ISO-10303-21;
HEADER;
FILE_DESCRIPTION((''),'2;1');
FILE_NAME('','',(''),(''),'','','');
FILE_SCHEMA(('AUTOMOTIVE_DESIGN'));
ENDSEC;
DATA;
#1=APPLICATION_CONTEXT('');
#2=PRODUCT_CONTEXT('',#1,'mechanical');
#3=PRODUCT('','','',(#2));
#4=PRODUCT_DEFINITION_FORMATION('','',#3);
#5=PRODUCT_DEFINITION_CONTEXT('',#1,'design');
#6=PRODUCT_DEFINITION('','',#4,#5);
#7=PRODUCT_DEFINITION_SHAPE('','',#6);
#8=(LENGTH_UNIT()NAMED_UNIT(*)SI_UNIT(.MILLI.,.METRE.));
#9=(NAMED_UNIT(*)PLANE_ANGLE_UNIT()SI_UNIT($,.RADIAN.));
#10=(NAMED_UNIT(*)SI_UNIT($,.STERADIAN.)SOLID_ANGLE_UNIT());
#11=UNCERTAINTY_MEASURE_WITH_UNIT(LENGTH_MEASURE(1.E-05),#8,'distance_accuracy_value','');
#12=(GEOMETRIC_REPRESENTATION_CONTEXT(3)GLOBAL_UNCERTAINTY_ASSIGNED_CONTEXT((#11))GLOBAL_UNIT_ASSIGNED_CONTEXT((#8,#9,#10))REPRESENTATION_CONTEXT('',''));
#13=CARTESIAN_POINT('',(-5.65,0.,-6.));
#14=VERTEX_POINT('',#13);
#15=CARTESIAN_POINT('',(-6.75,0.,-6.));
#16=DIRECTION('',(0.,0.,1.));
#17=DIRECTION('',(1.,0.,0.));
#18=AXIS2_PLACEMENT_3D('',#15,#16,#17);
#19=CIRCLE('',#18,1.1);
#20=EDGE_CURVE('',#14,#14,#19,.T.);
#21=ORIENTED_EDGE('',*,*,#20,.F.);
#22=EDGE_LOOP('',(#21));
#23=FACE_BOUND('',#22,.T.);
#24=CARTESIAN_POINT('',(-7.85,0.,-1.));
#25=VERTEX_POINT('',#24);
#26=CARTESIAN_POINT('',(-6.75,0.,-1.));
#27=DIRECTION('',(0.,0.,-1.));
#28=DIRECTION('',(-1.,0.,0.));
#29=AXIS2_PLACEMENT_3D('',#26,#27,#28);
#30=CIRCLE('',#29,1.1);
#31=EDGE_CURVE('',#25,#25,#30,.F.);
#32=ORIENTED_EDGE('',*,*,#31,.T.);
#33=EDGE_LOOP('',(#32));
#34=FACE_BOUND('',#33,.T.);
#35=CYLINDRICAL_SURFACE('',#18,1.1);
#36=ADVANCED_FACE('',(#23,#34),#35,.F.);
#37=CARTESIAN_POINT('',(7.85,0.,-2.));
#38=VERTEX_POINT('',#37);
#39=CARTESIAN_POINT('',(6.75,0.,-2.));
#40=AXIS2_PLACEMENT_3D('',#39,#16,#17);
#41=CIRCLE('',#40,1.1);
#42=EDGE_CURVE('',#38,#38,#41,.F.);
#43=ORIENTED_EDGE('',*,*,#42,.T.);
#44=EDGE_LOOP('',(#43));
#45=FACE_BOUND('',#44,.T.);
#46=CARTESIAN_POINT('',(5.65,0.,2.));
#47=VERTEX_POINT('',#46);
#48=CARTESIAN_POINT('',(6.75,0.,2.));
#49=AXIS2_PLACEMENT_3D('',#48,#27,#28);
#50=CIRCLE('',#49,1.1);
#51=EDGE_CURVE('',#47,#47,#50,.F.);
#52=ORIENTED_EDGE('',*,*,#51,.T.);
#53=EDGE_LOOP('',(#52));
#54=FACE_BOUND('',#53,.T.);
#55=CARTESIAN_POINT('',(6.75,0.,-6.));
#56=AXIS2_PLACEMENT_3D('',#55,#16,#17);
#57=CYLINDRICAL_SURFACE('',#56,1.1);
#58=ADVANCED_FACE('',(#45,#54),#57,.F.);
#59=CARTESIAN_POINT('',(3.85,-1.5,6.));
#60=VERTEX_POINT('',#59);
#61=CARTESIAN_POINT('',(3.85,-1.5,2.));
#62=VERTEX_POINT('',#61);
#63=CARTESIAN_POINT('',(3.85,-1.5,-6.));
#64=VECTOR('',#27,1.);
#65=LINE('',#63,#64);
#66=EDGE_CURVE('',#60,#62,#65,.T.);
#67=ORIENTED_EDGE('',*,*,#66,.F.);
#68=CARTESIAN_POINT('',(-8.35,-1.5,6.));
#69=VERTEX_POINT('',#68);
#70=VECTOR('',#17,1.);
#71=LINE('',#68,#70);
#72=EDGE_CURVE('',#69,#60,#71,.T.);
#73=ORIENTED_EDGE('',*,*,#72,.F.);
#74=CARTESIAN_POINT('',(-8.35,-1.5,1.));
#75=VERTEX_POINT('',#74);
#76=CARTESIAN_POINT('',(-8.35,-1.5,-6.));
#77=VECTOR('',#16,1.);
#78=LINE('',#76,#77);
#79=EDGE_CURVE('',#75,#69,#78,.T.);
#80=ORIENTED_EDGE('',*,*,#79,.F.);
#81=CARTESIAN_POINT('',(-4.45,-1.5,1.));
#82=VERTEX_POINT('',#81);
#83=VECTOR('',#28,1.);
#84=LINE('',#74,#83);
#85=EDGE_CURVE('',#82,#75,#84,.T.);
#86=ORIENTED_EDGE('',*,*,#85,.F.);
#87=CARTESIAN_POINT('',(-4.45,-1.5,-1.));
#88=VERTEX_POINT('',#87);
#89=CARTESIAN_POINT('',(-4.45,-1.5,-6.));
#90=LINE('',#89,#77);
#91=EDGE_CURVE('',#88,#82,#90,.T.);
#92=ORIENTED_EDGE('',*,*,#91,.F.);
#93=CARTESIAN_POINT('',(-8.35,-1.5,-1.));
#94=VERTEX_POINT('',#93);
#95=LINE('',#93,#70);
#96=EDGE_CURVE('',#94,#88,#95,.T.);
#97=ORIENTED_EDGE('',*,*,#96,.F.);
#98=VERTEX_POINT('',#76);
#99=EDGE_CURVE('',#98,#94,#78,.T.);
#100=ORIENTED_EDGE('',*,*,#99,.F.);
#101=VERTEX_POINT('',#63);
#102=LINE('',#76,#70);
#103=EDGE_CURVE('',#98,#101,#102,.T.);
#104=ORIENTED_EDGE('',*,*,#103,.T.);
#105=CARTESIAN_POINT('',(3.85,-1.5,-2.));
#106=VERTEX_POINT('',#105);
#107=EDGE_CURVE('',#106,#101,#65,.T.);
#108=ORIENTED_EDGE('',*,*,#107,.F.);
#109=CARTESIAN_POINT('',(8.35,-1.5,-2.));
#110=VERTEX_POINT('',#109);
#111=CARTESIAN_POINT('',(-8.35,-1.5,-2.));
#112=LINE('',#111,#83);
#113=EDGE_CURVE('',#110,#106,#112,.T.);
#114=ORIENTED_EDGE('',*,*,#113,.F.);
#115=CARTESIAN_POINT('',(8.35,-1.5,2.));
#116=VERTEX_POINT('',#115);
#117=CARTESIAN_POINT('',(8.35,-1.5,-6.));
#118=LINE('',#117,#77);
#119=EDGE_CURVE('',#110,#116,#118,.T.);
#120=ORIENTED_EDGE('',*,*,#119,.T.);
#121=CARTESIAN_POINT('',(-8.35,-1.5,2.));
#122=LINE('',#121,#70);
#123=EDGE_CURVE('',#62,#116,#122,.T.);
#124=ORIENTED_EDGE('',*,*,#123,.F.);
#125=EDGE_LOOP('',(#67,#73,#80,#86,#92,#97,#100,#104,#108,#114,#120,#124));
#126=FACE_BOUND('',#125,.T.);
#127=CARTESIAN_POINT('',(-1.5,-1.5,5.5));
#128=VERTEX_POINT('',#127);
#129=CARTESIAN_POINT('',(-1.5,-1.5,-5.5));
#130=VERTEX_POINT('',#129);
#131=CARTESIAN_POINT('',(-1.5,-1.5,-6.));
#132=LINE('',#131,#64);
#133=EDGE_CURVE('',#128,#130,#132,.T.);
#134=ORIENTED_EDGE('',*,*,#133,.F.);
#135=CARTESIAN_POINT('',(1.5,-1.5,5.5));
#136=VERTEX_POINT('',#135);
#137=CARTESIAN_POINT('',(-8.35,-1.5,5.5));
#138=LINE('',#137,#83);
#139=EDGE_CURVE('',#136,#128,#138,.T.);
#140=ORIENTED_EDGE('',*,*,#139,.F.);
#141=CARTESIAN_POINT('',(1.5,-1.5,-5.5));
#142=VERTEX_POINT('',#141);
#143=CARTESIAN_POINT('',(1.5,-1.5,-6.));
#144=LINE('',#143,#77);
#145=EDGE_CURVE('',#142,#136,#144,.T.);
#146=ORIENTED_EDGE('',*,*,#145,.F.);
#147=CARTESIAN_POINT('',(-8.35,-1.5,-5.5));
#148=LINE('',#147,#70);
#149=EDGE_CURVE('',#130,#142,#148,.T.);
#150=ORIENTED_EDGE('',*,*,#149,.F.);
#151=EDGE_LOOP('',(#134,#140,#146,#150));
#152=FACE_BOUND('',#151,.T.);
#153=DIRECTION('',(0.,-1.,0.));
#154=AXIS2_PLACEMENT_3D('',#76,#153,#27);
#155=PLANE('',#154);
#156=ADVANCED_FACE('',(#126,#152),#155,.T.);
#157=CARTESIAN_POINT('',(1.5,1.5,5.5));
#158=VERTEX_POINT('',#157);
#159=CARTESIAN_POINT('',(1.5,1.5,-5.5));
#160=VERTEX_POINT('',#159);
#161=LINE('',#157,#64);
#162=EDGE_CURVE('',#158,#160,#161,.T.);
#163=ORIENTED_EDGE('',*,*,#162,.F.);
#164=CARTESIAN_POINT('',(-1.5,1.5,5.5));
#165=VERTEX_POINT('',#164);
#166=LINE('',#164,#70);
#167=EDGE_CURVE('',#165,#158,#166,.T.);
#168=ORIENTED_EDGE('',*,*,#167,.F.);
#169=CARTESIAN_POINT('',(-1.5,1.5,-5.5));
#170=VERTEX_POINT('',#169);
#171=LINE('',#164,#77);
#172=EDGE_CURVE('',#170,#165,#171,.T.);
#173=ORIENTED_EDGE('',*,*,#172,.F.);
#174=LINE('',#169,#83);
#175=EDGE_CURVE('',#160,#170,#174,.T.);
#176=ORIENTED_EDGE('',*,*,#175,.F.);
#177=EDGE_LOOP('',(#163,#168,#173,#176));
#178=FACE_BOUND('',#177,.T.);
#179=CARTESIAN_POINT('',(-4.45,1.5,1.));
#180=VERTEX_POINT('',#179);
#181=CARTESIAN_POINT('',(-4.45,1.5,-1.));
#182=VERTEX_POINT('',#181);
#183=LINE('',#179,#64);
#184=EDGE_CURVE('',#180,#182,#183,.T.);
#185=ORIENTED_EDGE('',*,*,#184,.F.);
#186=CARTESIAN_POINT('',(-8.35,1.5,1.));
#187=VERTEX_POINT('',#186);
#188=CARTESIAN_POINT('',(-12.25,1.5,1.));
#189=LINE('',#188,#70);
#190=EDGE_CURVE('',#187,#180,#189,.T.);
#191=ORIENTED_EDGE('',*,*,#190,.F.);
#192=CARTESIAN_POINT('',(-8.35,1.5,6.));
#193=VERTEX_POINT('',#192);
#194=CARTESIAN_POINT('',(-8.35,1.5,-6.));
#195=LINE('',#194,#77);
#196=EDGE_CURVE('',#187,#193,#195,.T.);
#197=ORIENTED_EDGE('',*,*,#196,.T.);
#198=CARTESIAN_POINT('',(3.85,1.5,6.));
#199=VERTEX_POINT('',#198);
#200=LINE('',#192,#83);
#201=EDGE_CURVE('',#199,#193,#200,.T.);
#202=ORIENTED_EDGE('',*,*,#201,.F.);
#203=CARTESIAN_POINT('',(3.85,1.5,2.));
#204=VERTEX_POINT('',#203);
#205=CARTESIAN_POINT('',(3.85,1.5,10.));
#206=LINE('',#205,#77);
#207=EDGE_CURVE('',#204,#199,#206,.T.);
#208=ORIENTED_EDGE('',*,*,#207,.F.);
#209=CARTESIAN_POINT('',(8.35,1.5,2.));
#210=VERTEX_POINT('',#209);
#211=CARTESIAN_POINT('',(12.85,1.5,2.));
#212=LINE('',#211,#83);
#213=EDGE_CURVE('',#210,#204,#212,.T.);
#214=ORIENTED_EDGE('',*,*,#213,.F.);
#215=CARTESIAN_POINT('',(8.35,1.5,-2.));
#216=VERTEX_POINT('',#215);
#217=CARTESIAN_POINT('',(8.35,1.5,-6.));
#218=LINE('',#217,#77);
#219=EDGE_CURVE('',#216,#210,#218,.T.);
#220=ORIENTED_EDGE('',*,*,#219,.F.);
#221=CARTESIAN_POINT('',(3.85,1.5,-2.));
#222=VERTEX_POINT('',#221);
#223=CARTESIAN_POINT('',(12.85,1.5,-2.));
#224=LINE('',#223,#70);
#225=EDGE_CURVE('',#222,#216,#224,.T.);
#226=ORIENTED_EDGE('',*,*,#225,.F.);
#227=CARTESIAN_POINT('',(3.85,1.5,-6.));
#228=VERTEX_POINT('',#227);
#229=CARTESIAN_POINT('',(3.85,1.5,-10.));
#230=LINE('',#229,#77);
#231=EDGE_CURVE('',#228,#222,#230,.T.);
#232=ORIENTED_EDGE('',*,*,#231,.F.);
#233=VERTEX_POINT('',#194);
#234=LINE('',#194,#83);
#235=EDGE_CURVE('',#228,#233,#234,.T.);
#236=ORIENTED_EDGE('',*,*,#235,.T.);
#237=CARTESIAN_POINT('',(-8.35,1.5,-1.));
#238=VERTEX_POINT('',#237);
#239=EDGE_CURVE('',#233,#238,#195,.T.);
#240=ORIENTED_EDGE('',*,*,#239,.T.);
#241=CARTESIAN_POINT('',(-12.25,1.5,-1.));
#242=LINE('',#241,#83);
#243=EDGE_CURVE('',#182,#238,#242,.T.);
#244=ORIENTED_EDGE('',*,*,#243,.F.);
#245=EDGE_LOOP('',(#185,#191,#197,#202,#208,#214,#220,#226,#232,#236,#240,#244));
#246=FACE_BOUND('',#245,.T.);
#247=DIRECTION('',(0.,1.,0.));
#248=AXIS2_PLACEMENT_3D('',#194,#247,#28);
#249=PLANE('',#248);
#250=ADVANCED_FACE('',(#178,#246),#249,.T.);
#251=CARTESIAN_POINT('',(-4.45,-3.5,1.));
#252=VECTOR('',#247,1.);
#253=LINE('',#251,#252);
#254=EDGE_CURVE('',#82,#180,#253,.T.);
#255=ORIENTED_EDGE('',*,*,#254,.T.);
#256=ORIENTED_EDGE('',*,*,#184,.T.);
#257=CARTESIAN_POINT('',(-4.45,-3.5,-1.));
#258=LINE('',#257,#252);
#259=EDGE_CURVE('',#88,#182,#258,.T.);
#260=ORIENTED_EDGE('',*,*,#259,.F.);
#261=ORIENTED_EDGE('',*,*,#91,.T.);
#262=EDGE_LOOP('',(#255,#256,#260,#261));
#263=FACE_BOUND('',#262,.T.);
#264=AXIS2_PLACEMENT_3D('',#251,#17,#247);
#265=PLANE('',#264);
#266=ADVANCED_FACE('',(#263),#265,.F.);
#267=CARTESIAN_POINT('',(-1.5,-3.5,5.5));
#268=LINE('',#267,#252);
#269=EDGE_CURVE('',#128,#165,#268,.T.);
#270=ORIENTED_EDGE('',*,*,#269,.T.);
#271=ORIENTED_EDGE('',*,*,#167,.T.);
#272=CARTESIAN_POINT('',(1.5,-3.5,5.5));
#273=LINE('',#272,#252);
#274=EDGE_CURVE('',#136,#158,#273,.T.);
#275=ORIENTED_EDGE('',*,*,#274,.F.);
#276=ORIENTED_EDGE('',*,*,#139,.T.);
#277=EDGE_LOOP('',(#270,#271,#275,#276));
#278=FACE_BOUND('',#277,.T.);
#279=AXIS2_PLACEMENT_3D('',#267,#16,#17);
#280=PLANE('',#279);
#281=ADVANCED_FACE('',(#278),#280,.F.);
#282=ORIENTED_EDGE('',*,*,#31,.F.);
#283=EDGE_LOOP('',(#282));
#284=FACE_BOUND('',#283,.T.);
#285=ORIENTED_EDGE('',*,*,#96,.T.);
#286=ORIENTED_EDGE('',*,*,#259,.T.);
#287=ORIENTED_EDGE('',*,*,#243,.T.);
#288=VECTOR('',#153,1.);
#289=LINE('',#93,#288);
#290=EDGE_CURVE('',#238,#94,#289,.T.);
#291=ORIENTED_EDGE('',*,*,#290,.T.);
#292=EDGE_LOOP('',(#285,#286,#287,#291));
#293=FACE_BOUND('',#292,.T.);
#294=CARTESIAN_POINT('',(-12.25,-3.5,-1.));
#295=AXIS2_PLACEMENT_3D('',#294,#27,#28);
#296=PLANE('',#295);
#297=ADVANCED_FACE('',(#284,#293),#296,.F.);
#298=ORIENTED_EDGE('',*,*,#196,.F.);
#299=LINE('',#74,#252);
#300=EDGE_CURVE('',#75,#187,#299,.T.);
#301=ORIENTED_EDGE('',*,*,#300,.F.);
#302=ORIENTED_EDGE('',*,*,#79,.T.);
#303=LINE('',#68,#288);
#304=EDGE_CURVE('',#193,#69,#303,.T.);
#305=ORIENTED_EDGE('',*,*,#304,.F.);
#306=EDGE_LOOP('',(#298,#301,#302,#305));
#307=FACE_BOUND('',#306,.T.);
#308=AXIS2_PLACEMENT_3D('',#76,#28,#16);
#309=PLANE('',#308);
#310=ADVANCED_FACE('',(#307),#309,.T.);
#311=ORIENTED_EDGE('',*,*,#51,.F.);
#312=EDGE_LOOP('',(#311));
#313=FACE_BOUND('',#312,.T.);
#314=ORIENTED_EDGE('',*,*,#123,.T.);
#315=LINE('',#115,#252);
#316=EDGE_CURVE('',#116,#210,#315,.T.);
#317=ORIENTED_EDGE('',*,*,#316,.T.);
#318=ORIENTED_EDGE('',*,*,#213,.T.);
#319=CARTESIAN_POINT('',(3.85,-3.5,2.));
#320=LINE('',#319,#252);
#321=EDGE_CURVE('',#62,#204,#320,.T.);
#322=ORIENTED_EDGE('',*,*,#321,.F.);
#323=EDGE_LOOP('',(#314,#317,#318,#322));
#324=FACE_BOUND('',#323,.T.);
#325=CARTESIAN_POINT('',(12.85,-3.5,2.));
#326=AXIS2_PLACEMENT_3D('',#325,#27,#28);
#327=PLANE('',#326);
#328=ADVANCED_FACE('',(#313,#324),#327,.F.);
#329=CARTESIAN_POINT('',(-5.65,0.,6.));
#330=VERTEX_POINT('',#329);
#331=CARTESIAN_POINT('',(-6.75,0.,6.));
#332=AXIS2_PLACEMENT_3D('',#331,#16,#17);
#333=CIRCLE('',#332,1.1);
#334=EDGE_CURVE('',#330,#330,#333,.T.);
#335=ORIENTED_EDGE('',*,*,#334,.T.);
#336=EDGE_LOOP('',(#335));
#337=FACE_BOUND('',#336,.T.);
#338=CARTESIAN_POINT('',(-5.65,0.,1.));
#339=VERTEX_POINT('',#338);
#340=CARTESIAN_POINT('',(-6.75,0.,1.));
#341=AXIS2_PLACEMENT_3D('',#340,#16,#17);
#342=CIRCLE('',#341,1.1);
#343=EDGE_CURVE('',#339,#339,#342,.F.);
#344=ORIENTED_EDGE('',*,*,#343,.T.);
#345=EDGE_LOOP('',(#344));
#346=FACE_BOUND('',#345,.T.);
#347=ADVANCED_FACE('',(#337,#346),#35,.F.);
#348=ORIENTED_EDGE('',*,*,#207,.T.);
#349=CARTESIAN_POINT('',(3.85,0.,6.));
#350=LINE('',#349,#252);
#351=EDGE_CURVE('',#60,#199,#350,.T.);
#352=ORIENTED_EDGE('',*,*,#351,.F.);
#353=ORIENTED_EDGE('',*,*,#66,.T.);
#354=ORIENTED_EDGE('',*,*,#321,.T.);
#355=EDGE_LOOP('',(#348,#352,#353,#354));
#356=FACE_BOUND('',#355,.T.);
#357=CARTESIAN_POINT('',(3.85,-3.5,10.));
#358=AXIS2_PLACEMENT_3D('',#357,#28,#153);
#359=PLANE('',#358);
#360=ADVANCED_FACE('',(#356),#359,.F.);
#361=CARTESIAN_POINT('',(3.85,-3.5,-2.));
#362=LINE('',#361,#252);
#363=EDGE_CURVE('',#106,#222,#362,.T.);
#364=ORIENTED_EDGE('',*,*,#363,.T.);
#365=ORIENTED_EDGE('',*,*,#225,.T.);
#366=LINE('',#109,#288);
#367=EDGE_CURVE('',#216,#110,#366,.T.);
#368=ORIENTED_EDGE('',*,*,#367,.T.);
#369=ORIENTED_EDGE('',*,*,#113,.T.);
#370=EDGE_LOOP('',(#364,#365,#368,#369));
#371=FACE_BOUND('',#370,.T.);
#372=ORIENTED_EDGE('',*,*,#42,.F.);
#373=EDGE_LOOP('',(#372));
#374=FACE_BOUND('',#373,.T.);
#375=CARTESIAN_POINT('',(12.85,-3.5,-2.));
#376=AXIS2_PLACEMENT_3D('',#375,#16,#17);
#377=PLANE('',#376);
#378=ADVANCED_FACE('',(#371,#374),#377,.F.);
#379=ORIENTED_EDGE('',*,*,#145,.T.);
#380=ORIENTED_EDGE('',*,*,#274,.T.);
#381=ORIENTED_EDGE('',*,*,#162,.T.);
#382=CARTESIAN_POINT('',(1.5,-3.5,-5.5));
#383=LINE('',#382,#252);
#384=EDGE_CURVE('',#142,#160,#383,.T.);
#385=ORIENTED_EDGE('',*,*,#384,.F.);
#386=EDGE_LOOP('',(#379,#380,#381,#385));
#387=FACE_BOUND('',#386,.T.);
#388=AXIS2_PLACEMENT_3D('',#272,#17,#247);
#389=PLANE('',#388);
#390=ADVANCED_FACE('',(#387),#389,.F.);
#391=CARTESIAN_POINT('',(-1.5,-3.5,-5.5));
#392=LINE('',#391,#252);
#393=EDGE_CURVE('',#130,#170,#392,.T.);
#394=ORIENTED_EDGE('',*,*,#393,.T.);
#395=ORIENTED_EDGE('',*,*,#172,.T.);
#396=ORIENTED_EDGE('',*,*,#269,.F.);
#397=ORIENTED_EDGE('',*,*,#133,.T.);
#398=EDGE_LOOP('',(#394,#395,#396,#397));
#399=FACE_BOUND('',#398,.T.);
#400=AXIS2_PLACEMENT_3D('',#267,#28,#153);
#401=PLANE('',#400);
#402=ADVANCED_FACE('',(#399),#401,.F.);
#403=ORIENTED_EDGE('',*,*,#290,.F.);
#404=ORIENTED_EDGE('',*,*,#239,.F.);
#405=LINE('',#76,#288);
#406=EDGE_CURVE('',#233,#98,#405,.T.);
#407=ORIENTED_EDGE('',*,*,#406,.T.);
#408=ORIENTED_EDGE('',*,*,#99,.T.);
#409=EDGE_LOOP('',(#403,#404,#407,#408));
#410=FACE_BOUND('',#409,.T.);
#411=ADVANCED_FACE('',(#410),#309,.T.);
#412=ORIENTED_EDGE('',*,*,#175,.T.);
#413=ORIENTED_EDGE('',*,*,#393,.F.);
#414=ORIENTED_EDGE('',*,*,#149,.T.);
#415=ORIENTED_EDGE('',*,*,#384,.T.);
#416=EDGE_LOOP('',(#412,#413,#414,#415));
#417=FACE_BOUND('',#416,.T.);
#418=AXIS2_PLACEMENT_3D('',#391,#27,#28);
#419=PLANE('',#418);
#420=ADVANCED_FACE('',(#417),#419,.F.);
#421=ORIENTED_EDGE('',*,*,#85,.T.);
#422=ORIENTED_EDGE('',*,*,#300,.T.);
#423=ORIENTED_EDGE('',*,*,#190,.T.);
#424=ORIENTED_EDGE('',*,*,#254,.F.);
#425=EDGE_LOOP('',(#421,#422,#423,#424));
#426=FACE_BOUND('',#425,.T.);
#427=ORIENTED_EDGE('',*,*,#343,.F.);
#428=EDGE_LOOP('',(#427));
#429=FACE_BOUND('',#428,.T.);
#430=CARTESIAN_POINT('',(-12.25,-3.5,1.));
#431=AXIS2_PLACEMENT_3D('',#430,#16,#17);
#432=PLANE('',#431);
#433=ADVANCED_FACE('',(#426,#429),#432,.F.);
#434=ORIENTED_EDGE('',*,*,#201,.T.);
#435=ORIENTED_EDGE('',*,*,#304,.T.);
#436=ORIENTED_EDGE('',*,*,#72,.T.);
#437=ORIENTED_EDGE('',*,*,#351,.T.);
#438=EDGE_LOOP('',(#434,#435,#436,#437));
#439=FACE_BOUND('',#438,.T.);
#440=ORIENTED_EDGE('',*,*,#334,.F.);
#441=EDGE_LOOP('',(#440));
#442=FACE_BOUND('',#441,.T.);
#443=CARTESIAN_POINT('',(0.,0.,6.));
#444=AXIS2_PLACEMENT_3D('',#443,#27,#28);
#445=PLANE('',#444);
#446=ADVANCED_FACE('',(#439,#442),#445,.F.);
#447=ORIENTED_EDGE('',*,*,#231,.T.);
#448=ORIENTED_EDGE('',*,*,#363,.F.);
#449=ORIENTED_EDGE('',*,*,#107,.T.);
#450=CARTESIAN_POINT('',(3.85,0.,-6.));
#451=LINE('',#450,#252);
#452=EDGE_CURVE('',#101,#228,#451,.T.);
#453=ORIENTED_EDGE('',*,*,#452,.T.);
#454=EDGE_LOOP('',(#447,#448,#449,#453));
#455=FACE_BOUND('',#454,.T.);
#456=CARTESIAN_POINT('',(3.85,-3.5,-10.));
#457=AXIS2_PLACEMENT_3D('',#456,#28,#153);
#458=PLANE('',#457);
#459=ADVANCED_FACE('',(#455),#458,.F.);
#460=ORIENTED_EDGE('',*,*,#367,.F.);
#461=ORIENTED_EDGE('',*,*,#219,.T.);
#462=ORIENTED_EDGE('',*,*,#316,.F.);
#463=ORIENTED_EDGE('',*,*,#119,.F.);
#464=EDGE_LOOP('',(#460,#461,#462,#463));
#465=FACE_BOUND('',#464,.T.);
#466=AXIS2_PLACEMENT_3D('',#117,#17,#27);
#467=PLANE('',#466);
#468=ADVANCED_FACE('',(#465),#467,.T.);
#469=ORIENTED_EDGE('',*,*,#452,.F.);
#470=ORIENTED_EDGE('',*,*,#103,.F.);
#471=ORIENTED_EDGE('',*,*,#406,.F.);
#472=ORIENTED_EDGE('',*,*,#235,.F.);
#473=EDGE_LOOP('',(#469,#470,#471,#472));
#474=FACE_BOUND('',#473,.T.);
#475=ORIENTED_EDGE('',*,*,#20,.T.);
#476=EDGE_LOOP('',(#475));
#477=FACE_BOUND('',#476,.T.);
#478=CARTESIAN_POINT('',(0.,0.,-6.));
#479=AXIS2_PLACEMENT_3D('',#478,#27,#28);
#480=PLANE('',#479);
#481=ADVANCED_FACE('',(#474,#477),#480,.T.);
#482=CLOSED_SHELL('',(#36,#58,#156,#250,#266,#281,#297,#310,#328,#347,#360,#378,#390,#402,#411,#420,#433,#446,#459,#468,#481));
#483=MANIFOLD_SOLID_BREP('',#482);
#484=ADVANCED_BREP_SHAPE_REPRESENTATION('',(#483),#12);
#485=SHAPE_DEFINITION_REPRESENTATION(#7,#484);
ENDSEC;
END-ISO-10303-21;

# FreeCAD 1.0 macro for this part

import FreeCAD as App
import Part
import Sketcher

V = App.Vector


def add_polygon(sketch, points):
    """Adds a closed chain of lines whose ends are joined by coincident constraints."""
    first, n = sketch.GeometryCount, len(points)
    for a, b in zip(points, points[1:] + points[:1]):
        sketch.addGeometry(Part.LineSegment(App.Vector(*a, 0), App.Vector(*b, 0)), False)
    for i in range(n):
        sketch.addConstraint(Sketcher.Constraint("Coincident", first + i, 2, first + (i + 1) % n, 1))

doc = App.newDocument("Part")
body = doc.addObject("PartDesign::Body", "Body")

# Sketch on XY plane
sketch1 = body.newObject("Sketcher::SketchObject", "Sketch")
sketch1.AttachmentSupport = (doc.getObject("XY_Plane"), [""])
sketch1.MapMode = "FlatFace"
add_polygon(sketch1, [(-8.3, 1.5), (-8.3, -1.5), (8.3, -1.5), (8.3, 1.5)])  # lines 0-3
sketch1.addGeometry(Part.Circle(V(-6.8, 0, 0), V(0, 0, 1), 1.1), False)  # 4
sketch1.addGeometry(Part.Circle(V(6.8, 0, 0), V(0, 0, 1), 1.1), False)  # 5
sketch1.addConstraint([
    Sketcher.Constraint("Vertical", 0),
    Sketcher.Constraint("Horizontal", 1),
    Sketcher.Constraint("Vertical", 2),
    Sketcher.Constraint("Horizontal", 3),
    Sketcher.Constraint("Equal", 4, 5),
    Sketcher.Constraint("Symmetric", 4, 3, 5, 3, -1, 1),
    Sketcher.Constraint("Symmetric", 0, 2, 2, 2, -1, 1),
    Sketcher.Constraint("PointOnObject", 4, 3, -1),
    Sketcher.Constraint("Diameter", 4, 2.2),
    Sketcher.Constraint("DistanceY", 0, 2, 0, 1, 3.0),
    Sketcher.Constraint("DistanceX", 1, 1, 1, 2, 16.7),
    Sketcher.Constraint("DistanceX", 4, 3, 5, 3, 13.5),
])
pad1 = body.newObject("PartDesign::Pad", "Pad")
pad1.Profile = sketch1
pad1.Type = "TwoLengths"
pad1.Length = 6
pad1.Length2 = 6

# Sketch on XZ plane
sketch2 = body.newObject("Sketcher::SketchObject", "Sketch001")
sketch2.AttachmentSupport = (doc.getObject("XZ_Plane"), [""])
sketch2.MapMode = "FlatFace"
sketch2.AttachmentOffset = App.Placement(V(0, 0, -1.5), App.Rotation())
add_polygon(sketch2, [(-1.5, -5.5), (-1.5, 5.5), (1.5, 5.5), (1.5, -5.5)])  # lines 0-3
add_polygon(sketch2, [(3.9, 2), (3.9, 10), (12.8, 10), (12.8, 2)])  # lines 4-7
add_polygon(sketch2, [(3.9, -10), (3.9, -2), (12.8, -2), (12.8, -10)])  # lines 8-11
add_polygon(sketch2, [(-12.2, -1), (-12.2, 1), (-4.5, 1), (-4.5, -1)])  # lines 12-15
sketch2.addConstraint([
    Sketcher.Constraint("Vertical", 0),
    Sketcher.Constraint("Horizontal", 1),
    Sketcher.Constraint("Vertical", 2),
    Sketcher.Constraint("Horizontal", 3),
    Sketcher.Constraint("Vertical", 4),
    Sketcher.Constraint("Horizontal", 5),
    Sketcher.Constraint("Vertical", 6),
    Sketcher.Constraint("Horizontal", 7),
    Sketcher.Constraint("Vertical", 8),
    Sketcher.Constraint("Horizontal", 9),
    Sketcher.Constraint("Vertical", 10),
    Sketcher.Constraint("Horizontal", 11),
    Sketcher.Constraint("Vertical", 12),
    Sketcher.Constraint("Horizontal", 13),
    Sketcher.Constraint("Vertical", 14),
    Sketcher.Constraint("Horizontal", 15),
    Sketcher.Constraint("Symmetric", 0, 2, 2, 2, -1, 1),
    Sketcher.Constraint("Symmetric", 7, 2, 8, 2, -1),
    Sketcher.Constraint("Symmetric", 5, 2, 10, 2, -1),
    Sketcher.Constraint("DistanceX", 1, 1, 1, 2, 3.0),
    Sketcher.Constraint("DistanceX", 5, 1, 5, 2, 9.0),
    Sketcher.Constraint("DistanceY", 0, 1, 0, 2, 11.0),
    Sketcher.Constraint("DistanceY", 4, 1, 4, 2, 8.0),
    Sketcher.Constraint("DistanceY", 12, 1, 12, 2, 2.0),
    Sketcher.Constraint("DistanceX", 13, 1, 13, 2, 7.8),
    Sketcher.Constraint("DistanceY", -1, 1, 4, 2, 10.0),
    Sketcher.Constraint("DistanceY", -1, 1, 12, 2, 1.0),
    Sketcher.Constraint("DistanceX", 12, 2, 7, 2, 16.1),
    Sketcher.Constraint("DistanceX", -1, 1, 4, 2, 3.85),
])
pocket1 = body.newObject("PartDesign::Pocket", "Pocket")
pocket1.Profile = sketch2
pocket1.Length = 5
pocket1.Reversed = True

doc.recompute()
